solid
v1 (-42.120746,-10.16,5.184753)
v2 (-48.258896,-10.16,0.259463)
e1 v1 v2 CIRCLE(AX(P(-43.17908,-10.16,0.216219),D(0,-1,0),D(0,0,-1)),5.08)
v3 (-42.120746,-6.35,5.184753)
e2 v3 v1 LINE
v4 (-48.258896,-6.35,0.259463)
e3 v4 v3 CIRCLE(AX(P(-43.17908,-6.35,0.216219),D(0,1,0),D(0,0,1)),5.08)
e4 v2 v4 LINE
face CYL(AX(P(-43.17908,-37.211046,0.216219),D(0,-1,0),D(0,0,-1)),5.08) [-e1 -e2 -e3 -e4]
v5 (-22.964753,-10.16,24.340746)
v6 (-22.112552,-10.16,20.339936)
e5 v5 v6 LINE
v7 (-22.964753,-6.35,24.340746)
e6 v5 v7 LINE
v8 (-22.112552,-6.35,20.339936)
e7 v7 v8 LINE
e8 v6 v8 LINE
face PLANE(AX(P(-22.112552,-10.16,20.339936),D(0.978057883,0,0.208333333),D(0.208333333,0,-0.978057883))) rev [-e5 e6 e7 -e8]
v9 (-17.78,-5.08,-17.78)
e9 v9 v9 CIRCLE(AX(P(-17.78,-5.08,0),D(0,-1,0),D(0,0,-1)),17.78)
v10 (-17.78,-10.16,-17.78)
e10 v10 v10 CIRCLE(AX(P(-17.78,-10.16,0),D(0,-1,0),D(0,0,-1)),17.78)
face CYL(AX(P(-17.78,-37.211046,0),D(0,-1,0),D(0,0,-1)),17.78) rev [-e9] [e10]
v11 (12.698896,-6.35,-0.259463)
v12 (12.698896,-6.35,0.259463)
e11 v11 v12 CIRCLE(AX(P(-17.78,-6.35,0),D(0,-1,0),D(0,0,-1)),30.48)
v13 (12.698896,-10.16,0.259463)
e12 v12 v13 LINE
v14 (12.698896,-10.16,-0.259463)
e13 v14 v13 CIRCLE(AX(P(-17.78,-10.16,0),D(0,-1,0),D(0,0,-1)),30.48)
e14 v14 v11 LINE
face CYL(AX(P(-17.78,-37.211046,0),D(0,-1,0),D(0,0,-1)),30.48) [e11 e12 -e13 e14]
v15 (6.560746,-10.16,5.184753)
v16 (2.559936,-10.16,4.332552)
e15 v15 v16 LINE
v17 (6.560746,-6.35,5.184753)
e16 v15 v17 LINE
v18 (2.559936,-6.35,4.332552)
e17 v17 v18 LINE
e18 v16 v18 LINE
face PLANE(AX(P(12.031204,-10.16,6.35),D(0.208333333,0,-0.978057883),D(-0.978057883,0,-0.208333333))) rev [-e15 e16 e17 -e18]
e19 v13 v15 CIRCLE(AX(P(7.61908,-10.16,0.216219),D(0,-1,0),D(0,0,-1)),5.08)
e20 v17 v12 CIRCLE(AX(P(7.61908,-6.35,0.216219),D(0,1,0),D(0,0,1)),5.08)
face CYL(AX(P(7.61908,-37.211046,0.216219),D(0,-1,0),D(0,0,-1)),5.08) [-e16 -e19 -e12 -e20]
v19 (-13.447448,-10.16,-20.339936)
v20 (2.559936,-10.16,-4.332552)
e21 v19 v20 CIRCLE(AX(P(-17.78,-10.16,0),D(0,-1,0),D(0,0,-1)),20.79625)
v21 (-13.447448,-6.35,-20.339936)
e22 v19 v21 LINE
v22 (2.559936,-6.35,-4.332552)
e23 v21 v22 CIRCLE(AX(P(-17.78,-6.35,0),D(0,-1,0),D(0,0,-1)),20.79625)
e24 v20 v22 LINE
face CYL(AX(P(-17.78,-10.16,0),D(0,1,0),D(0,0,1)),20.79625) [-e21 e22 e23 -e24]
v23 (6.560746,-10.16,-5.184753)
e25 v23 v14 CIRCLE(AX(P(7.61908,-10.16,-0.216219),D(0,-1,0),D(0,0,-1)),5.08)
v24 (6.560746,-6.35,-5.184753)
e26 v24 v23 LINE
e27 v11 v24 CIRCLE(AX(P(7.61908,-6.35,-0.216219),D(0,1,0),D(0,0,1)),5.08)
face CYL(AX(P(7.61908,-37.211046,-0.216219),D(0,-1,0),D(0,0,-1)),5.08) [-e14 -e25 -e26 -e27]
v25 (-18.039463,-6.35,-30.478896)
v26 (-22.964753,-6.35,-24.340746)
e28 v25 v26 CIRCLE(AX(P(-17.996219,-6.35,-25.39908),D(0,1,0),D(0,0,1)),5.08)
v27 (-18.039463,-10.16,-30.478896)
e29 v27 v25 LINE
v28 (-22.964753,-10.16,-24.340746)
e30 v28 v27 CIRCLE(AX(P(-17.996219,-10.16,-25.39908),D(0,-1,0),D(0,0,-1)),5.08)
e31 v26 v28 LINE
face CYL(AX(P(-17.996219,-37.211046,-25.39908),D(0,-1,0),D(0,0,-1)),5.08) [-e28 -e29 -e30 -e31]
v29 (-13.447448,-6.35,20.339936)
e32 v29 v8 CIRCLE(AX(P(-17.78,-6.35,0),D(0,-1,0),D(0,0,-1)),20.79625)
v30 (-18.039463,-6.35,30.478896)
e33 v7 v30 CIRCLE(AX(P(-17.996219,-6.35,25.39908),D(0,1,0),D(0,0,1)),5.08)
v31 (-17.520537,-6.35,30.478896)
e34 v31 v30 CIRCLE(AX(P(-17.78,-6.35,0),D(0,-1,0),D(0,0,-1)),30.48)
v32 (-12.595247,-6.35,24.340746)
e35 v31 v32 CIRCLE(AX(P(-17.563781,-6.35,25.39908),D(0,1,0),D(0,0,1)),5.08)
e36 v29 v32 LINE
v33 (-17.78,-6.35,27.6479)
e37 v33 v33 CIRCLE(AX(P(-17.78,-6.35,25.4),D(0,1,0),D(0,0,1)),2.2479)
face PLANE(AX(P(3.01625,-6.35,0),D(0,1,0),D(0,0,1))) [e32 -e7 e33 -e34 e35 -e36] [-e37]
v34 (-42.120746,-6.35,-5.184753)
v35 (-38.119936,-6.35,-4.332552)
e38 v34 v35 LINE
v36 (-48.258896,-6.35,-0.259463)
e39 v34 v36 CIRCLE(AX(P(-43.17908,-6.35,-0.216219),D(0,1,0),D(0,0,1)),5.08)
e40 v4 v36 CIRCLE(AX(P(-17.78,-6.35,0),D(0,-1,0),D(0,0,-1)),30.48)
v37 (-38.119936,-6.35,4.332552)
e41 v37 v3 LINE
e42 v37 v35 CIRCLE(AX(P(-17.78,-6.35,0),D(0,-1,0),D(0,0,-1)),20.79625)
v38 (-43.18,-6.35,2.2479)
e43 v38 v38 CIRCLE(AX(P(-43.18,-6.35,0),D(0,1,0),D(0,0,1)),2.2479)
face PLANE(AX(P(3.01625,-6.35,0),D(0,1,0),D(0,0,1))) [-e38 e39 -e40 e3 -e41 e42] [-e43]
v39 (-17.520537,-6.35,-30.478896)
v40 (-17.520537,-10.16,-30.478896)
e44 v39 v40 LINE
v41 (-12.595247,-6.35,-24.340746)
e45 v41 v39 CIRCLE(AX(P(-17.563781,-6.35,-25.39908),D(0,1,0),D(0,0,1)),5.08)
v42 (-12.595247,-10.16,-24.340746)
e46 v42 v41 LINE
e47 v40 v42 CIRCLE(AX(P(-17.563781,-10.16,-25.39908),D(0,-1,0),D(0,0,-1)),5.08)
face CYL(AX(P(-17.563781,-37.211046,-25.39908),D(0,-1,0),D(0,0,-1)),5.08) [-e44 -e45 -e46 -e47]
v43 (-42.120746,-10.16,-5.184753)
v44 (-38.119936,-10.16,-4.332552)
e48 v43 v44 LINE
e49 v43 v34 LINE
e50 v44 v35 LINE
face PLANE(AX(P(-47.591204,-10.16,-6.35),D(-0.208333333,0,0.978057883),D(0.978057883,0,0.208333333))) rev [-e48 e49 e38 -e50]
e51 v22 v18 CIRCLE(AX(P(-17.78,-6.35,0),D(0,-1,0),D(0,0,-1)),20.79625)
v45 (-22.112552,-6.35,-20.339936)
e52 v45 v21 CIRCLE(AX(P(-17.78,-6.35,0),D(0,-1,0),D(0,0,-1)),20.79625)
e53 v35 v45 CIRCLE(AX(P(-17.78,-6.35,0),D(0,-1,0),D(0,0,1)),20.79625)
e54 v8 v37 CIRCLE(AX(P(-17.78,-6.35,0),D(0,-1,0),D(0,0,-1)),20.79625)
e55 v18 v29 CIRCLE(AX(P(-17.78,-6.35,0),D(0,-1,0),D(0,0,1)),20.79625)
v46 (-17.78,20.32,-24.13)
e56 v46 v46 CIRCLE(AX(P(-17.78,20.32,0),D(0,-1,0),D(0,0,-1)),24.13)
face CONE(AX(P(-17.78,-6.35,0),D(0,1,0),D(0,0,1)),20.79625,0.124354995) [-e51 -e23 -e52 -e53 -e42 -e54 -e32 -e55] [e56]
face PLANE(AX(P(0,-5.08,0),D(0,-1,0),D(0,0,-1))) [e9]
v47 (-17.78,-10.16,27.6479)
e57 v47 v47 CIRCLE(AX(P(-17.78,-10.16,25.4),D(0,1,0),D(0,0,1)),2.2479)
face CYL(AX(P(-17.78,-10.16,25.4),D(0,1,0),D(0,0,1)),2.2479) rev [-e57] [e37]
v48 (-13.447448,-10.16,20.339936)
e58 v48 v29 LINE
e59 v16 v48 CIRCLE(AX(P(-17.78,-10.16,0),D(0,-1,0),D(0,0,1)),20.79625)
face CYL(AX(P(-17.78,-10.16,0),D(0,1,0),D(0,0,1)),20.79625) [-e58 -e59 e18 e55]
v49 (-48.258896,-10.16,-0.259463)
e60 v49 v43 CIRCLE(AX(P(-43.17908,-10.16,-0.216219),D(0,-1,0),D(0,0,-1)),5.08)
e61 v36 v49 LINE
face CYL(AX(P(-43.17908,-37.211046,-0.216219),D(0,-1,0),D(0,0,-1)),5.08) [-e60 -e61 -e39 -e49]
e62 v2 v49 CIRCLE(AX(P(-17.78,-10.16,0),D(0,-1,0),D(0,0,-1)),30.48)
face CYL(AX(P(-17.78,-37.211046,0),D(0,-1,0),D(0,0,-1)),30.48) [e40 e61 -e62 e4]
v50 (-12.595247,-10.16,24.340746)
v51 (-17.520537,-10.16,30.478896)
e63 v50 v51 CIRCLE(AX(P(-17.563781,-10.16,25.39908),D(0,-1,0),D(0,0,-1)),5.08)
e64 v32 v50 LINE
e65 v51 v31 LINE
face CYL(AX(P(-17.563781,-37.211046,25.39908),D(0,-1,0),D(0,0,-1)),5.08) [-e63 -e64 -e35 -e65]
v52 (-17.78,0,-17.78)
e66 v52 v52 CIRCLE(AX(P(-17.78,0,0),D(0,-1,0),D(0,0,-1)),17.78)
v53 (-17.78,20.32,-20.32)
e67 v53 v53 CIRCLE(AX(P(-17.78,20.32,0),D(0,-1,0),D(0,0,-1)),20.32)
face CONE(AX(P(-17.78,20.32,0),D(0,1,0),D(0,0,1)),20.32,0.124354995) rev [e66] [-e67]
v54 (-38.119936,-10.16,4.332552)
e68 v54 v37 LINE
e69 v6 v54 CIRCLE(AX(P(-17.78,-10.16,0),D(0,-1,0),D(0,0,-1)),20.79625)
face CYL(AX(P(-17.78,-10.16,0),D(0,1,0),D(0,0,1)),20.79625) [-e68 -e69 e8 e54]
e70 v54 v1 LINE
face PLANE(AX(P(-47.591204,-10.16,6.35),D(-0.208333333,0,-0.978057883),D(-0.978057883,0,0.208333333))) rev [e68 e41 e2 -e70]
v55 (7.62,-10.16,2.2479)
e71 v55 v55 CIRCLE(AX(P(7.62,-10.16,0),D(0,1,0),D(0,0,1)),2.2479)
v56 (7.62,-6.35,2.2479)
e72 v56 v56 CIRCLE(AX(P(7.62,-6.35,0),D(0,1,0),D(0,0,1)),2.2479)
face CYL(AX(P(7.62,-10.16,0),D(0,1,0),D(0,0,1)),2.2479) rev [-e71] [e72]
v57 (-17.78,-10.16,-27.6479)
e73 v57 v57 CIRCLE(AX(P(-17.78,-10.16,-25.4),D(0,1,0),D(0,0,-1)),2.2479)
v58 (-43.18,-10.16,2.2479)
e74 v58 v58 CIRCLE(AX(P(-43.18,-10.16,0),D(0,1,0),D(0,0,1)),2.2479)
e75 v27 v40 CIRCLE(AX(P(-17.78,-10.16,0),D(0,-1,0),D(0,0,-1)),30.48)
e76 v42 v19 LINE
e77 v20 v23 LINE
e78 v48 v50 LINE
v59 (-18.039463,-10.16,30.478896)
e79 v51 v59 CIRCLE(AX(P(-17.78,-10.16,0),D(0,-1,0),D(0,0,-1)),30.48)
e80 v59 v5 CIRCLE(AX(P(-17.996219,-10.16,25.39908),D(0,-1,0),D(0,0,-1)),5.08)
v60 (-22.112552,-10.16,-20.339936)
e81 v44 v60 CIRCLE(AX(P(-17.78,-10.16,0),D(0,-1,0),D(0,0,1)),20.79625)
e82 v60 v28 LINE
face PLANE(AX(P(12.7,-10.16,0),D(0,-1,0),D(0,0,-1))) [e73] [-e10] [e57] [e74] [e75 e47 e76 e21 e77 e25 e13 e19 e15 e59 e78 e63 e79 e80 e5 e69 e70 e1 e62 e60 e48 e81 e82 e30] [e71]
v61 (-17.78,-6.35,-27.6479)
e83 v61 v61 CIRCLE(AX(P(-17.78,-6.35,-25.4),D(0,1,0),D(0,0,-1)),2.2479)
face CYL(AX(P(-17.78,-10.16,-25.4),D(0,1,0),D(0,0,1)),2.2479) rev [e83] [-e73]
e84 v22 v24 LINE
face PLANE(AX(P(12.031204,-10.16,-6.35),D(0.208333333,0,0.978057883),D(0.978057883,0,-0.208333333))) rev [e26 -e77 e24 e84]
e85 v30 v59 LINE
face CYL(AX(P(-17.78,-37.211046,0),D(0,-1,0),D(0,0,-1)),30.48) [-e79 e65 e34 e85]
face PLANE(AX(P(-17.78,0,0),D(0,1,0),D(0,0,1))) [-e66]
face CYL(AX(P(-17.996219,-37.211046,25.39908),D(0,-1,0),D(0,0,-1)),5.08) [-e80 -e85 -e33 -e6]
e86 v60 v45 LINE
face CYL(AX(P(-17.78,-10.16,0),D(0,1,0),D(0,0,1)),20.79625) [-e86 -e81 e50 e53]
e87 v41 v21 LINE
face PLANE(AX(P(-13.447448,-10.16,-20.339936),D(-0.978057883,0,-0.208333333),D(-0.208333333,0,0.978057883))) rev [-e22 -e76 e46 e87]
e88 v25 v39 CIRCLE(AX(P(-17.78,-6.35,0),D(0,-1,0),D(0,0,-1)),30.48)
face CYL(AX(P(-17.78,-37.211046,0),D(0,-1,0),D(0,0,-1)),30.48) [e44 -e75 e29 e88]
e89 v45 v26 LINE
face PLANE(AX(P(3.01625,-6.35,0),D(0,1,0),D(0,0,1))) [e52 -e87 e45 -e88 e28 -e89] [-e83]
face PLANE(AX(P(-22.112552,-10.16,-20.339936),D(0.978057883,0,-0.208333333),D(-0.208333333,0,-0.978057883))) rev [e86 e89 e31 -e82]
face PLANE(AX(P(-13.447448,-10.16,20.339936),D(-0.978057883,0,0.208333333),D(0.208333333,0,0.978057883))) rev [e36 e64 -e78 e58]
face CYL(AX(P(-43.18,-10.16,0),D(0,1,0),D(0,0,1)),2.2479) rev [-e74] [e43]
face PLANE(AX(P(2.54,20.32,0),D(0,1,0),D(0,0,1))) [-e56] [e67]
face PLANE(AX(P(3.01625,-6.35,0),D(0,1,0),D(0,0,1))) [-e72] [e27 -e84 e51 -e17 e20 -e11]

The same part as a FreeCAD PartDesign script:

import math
import FreeCAD as App
import Part
import Sketcher
from FreeCAD import Vector
Q = App.Units.Quantity


def edges_at(feature, points):
    """Names of the edges that pass closest to the given points."""
    edges = feature.Shape.Edges
    near = lambda p: min(range(len(edges)), key=lambda i: edges[i].distToShape(Part.Vertex(*p))[0])
    return sorted({f"Edge{near(p) + 1}" for p in points})


def add_polygon(sketch, points):
    """Adds a closed chain of lines whose ends are joined by coincident constraints."""
    first, n = sketch.GeometryCount, len(points)
    for a, b in zip(points, points[1:] + points[:1]):
        sketch.addGeometry(Part.LineSegment(App.Vector(*a, 0), App.Vector(*b, 0)), False)
    for i in range(n):
        sketch.addConstraint(Sketcher.Constraint("Coincident", first + i, 2, first + (i + 1) % n, 1))

doc = App.newDocument("Part")
params = doc.addObject("Spreadsheet::Sheet", "Params")
for row, (alias, value) in enumerate([
    ("sketch1_width", "0.7 in"),
    ("sketch1_width2", "0.5 in"),
    ("sketch1_height", "0.2 in"),
    ("sketch1_height2", "1.2 in"),
    ("sketch1_width3", "0.15 in"),
    ("revolution_angle", "360 deg"),
    ("sketch2_radius", "1.2 in"),
    ("sketch2_diameter", "0.177 in"),
    ("fillet_radius", "0.2 in"),
], start=1):
    params.set(f"A{row}", alias)
    params.set(f"B{row}", "=" + value)
    params.setAlias(f"B{row}", alias)

body = doc.addObject("PartDesign::Body", "Body")

# Sketch on XY plane
sketch1 = body.newObject("Sketcher::SketchObject", "Sketch")
sketch1.AttachmentSupport = (doc.getObject("XY_Plane"), [""])
sketch1.MapMode = "FlatFace"
add_polygon(sketch1, [(2.5, 20.3), (0, 0), (-17.8, 0), (-17.8, -5.1), (0, -5.1), (0, -10.2), (12.7, -10.2), (12.7, -6.3), (3, -6.3), (6.3, 20.3)])  # lines 0-9
sketch1.addGeometry(Part.LineSegment(Vector(-17.8, -10.2, 0), Vector(-17.8, 20.3, 0)), True)  # axis
sketch1.addConstraint([
    Sketcher.Constraint("Horizontal", 1),
    Sketcher.Constraint("Vertical", 2),
    Sketcher.Constraint("Horizontal", 3),
    Sketcher.Constraint("Vertical", 4),
    Sketcher.Constraint("Horizontal", 5),
    Sketcher.Constraint("Vertical", 6),
    Sketcher.Constraint("Horizontal", 7),
    Sketcher.Constraint("Horizontal", 9),
    Sketcher.Constraint("Vertical", 10),
    Sketcher.Constraint("Coincident", 0, 2, -1, 1),
    Sketcher.Constraint("PointOnObject", 3, 2, -2),
    Sketcher.Constraint("Parallel", 0, 8),
    Sketcher.Constraint("Horizontal", 5, 2, 10, 1),
    Sketcher.Constraint("Horizontal", 9, 2, 10, 2),
    Sketcher.Constraint("Vertical", 2, 2, 10, 1),
    Sketcher.Constraint("Equal", 2, 4),
    Sketcher.Constraint("Equal", 9, 6),
    Sketcher.Constraint("DistanceX", 1, 2, 1, 1, Q("0.7 in")),
    Sketcher.Constraint("DistanceX", 5, 1, 5, 2, Q("0.5 in")),
    Sketcher.Constraint("DistanceY", 2, 2, 2, 1, Q("0.2 in")),
    Sketcher.Constraint("DistanceY", 10, 1, 10, 2, Q("1.2 in")),
    Sketcher.Constraint("DistanceX", 9, 2, 9, 1, Q("0.15 in")),
    Sketcher.Constraint("DistanceX", -1, 1, 9, 2, Q("0.1 in")),
])
sketch1.setExpression("Constraints[27]", "Params.sketch1_width")
sketch1.setExpression("Constraints[28]", "Params.sketch1_width2")
sketch1.setExpression("Constraints[29]", "Params.sketch1_height")
sketch1.setExpression("Constraints[30]", "Params.sketch1_height2")
sketch1.setExpression("Constraints[31]", "Params.sketch1_width3")
revolution = body.newObject("PartDesign::Revolution", "Revolution")
revolution.Profile = sketch1
revolution.ReferenceAxis = (sketch1, ["Axis0"])
revolution.setExpression("Angle", "Params.revolution_angle")

# Sketch on XZ plane
sketch2 = body.newObject("Sketcher::SketchObject", "Sketch001")
sketch2.AttachmentSupport = (doc.getObject("XZ_Plane"), [""])
sketch2.MapMode = "FlatFace"
sketch2.AttachmentOffset = App.Placement(Vector(0, 0, 0.25 * 25.4), App.Rotation())
sketch2.addGeometry([
    Part.Circle(Vector(-17.8, 25.4, 0), Vector(0, 0, 1), 2.2),  # 0
    Part.Circle(Vector(-17.8, -25.4, 0), Vector(0, 0, 1), 2.2),  # 1
    Part.Circle(Vector(-43.2, 0, 0), Vector(0, 0, 1), 2.2),  # 2
    Part.Circle(Vector(7.6, 0, 0), Vector(0, 0, 1), 2.2),  # 3
    Part.LineSegment(Vector(12, 6.3, 0), Vector(2.6, 4.3, 0)),  # 4
    Part.ArcOfCircle(Part.Circle(Vector(-17.8, 0, 0), Vector(0, 0, 1), 20.8), math.radians(12), math.radians(78)),  # 5
    Part.LineSegment(Vector(-13.4, 20.3, 0), Vector(-11.4, 29.8, 0)),  # 6
    Part.ArcOfCircle(Part.Circle(Vector(-17.8, 0, 0), Vector(0, 0, 1), 30.5), math.radians(12), math.radians(78)),  # 7
    Part.LineSegment(Vector(-11.4, -29.8, 0), Vector(-13.4, -20.3, 0)),  # 8
    Part.ArcOfCircle(Part.Circle(Vector(-17.8, 0, 0), Vector(0, 0, 1), 20.8), math.radians(-78), math.radians(-12)),  # 9
    Part.LineSegment(Vector(2.6, -4.3, 0), Vector(12, -6.3, 0)),  # 10
    Part.ArcOfCircle(Part.Circle(Vector(-17.8, 0, 0), Vector(0, 0, 1), 30.5), math.radians(-78), math.radians(-12)),  # 11
    Part.LineSegment(Vector(-24.1, 29.8, 0), Vector(-22.1, 20.3, 0)),  # 12
    Part.ArcOfCircle(Part.Circle(Vector(-17.8, 0, 0), Vector(0, 0, 1), 20.8), math.radians(102), math.radians(168)),  # 13
    Part.LineSegment(Vector(-38.1, 4.3, 0), Vector(-47.6, 6.3, 0)),  # 14
    Part.ArcOfCircle(Part.Circle(Vector(-17.8, 0, 0), Vector(0, 0, 1), 30.5), math.radians(102), math.radians(168)),  # 15
    Part.LineSegment(Vector(-47.6, -6.3, 0), Vector(-38.1, -4.3, 0)),  # 16
    Part.ArcOfCircle(Part.Circle(Vector(-17.8, 0, 0), Vector(0, 0, 1), 20.8), math.radians(-168), math.radians(-102)),  # 17
    Part.LineSegment(Vector(-22.1, -20.3, 0), Vector(-24.1, -29.8, 0)),  # 18
    Part.ArcOfCircle(Part.Circle(Vector(-17.8, 0, 0), Vector(0, 0, 1), 30.5), math.radians(-168), math.radians(-102)),  # 19
], False)
sketch2.addConstraint([
    Sketcher.Constraint("Coincident", 4, 2, 5, 1),
    Sketcher.Constraint("Coincident", 5, 2, 6, 1),
    Sketcher.Constraint("Coincident", 6, 2, 7, 2),
    Sketcher.Constraint("Coincident", 7, 1, 4, 1),
    Sketcher.Constraint("Coincident", 8, 2, 9, 1),
    Sketcher.Constraint("Coincident", 9, 2, 10, 1),
    Sketcher.Constraint("Coincident", 10, 2, 11, 2),
    Sketcher.Constraint("Coincident", 11, 1, 8, 1),
    Sketcher.Constraint("Coincident", 12, 2, 13, 1),
    Sketcher.Constraint("Coincident", 13, 2, 14, 1),
    Sketcher.Constraint("Coincident", 14, 2, 15, 2),
    Sketcher.Constraint("Coincident", 15, 1, 12, 1),
    Sketcher.Constraint("Coincident", 16, 2, 17, 1),
    Sketcher.Constraint("Coincident", 17, 2, 18, 1),
    Sketcher.Constraint("Coincident", 18, 2, 19, 2),
    Sketcher.Constraint("Coincident", 19, 1, 16, 1),
    Sketcher.Constraint("Coincident", 7, 3, 5, 3),
    Sketcher.Constraint("Coincident", 9, 3, 5, 3),
    Sketcher.Constraint("Coincident", 11, 3, 5, 3),
    Sketcher.Constraint("Coincident", 13, 3, 5, 3),
    Sketcher.Constraint("Coincident", 15, 3, 5, 3),
    Sketcher.Constraint("Coincident", 17, 3, 5, 3),
    Sketcher.Constraint("Coincident", 19, 3, 5, 3),
    Sketcher.Constraint("Equal", 0, 1),
    Sketcher.Constraint("Equal", 1, 2),
    Sketcher.Constraint("Equal", 2, 3),
    Sketcher.Constraint("Equal", 5, 9),
    Sketcher.Constraint("Equal", 7, 11),
    Sketcher.Constraint("Equal", 9, 13),
    Sketcher.Constraint("Equal", 11, 15),
    Sketcher.Constraint("Equal", 13, 17),
    Sketcher.Constraint("Equal", 15, 19),
    Sketcher.Constraint("Symmetric", 0, 3, 1, 3, -1),
    Sketcher.Constraint("Symmetric", 5, 2, 8, 2, -1),
    Sketcher.Constraint("PointOnObject", 2, 3, -1),
    Sketcher.Constraint("PointOnObject", 3, 3, -1),
    Sketcher.Constraint("Perpendicular", 4, 8),
    Sketcher.Constraint("Perpendicular", 6, 10),
    Sketcher.Constraint("Parallel", 8, 12),
    Sketcher.Constraint("Parallel", 10, 14),
    Sketcher.Constraint("Perpendicular", 12, 16),
    Sketcher.Constraint("Perpendicular", 14, 18),
    Sketcher.Constraint("Horizontal", 5, 2, 12, 2),
    Sketcher.Constraint("Horizontal", 4, 2, 13, 2),
    Sketcher.Constraint("Horizontal", 7, 1, 14, 2),
    Sketcher.Constraint("Horizontal", 9, 2, 16, 2),
    Sketcher.Constraint("Horizontal", 8, 2, 17, 2),
    Sketcher.Constraint("Vertical", 1, 3, 5, 3),
    Sketcher.Constraint("Vertical", 4, 2, 9, 2),
    Sketcher.Constraint("Radius", 7, Q("1.2 in")),
    Sketcher.Constraint("Diameter", 0, Q("0.177 in")),
    Sketcher.Constraint("DistanceY", -1, 1, 0, 3, Q("1 in")),
    Sketcher.Constraint("DistanceX", 2, 3, 0, 3, Q("1 in")),
    Sketcher.Constraint("DistanceX", 0, 3, 3, 3, Q("1 in")),
    Sketcher.Constraint("DistanceX", 0, 3, -1, 1, Q("0.7 in")),
    Sketcher.Constraint("DistanceY", 10, 2, 7, 1, Q("0.5 in")),
    Sketcher.Constraint("DistanceX", 15, 1, 6, 2, Q("0.5 in")),
    Sketcher.Constraint("Radius", 5, Q("20.79625 mm")),
    Sketcher.Constraint("DistanceY", 5, 2, 6, 2, Q("9.471268 mm")),
])
sketch2.setExpression("Constraints[49]", "Params.sketch2_radius")
sketch2.setExpression("Constraints[50]", "Params.sketch2_diameter")
pocket1 = body.newObject("PartDesign::Pocket", "Pocket")
pocket1.Profile = sketch2
pocket1.Type = "ThroughAll"
pocket1.Reversed = True
doc.recompute()

fillet = body.newObject("PartDesign::Fillet", "Fillet")
fillet.Base = (pocket1, edges_at(pocket1, [
    (-24.13, -8.255, 29.811),
    (-47.591, -8.255, 6.35),
    (-11.43, -8.255, -29.811),
    (12.031, -8.255, -6.35),
    (-47.591, -8.255, -6.35),
    (-24.13, -8.255, -29.811),
    (12.031, -8.255, 6.35),
    (-11.43, -8.255, 29.811),
]))
fillet.setExpression("Radius", "Params.fillet_radius")

doc.recompute()
